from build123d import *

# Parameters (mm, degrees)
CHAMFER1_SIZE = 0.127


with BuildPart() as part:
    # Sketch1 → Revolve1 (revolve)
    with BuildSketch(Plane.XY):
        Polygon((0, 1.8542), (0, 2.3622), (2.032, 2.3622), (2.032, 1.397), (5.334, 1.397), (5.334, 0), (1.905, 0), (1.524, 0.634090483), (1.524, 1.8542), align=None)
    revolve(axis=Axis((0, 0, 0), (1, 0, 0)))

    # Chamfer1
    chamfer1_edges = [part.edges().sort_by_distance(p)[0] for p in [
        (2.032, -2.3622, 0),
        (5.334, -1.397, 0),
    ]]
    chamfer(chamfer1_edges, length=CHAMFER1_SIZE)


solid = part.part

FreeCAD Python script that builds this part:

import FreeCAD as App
import Part
import Sketcher
from FreeCAD import Vector
Q = App.Units.Quantity


def edges_at(feature, points):
    """Names of the edges that pass closest to the given points."""
    edges = feature.Shape.Edges
    near = lambda p: min(range(len(edges)), key=lambda i: edges[i].distToShape(Part.Vertex(*p))[0])
    return sorted({f"Edge{near(p) + 1}" for p in points})

doc = App.newDocument("Part")
body = doc.addObject("PartDesign::Body", "Body")

# Sketch on XY plane
sketch1 = body.newObject("Sketcher::SketchObject", "Sketch")
sketch1.AttachmentSupport = (doc.getObject("XY_Plane"), [""])
sketch1.MapMode = "FlatFace"
sketch1.addGeometry(Part.LineSegment(Vector(0, 2.3622, 0), Vector(0, 1.8542, 0)), False)
sketch1.addGeometry(Part.LineSegment(Vector(0, 1.8542, 0), Vector(1.524, 1.8542, 0)), False)
sketch1.addGeometry(Part.LineSegment(Vector(1.524, 1.8542, 0), Vector(1.524, 0.63409, 0)), False)
sketch1.addGeometry(Part.LineSegment(Vector(1.524, 0.63409, 0), Vector(1.905, 0, 0)), False)
sketch1.addGeometry(Part.LineSegment(Vector(1.905, 0, 0), Vector(5.334, 0, 0)), False)
sketch1.addGeometry(Part.LineSegment(Vector(5.334, 0, 0), Vector(5.334, 1.397, 0)), False)
sketch1.addGeometry(Part.LineSegment(Vector(5.334, 1.397, 0), Vector(2.032, 1.397, 0)), False)
sketch1.addGeometry(Part.LineSegment(Vector(2.032, 1.397, 0), Vector(2.032, 2.3622, 0)), False)
sketch1.addGeometry(Part.LineSegment(Vector(2.032, 2.3622, 0), Vector(0, 2.3622, 0)), False)
sketch1.addConstraint(Sketcher.Constraint("Coincident", 0, 2, 1, 1))
sketch1.addConstraint(Sketcher.Constraint("Coincident", 1, 2, 2, 1))
sketch1.addConstraint(Sketcher.Constraint("Coincident", 2, 2, 3, 1))
sketch1.addConstraint(Sketcher.Constraint("Coincident", 3, 2, 4, 1))
sketch1.addConstraint(Sketcher.Constraint("Coincident", 4, 2, 5, 1))
sketch1.addConstraint(Sketcher.Constraint("Coincident", 5, 2, 6, 1))
sketch1.addConstraint(Sketcher.Constraint("Coincident", 6, 2, 7, 1))
sketch1.addConstraint(Sketcher.Constraint("Coincident", 7, 2, 8, 1))
sketch1.addConstraint(Sketcher.Constraint("Coincident", 8, 2, 0, 1))
sketch1.addConstraint(Sketcher.Constraint("Vertical", 0))
sketch1.addConstraint(Sketcher.Constraint("Horizontal", 1))
sketch1.addConstraint(Sketcher.Constraint("Vertical", 2))
sketch1.addConstraint(Sketcher.Constraint("Horizontal", 4))
sketch1.addConstraint(Sketcher.Constraint("Vertical", 5))
sketch1.addConstraint(Sketcher.Constraint("Horizontal", 6))
sketch1.addConstraint(Sketcher.Constraint("Vertical", 7))
sketch1.addConstraint(Sketcher.Constraint("Horizontal", 8))
sketch1.addConstraint(Sketcher.Constraint("PointOnObject", 0, 2, -2))
sketch1.addConstraint(Sketcher.Constraint("PointOnObject", 3, 2, -1))
sketch1.addConstraint(Sketcher.Constraint("Angle", 3, Q("-59 deg")))
sketch1.addConstraint(Sketcher.Constraint("DistanceX", 1, 1, 1, 2, Q("0.06 in")))
sketch1.addConstraint(Sketcher.Constraint("DistanceX", 6, 2, 6, 1, Q("0.13 in")))
sketch1.addConstraint(Sketcher.Constraint("DistanceX", 8, 2, 8, 1, Q("0.08 in")))
sketch1.addConstraint(Sketcher.Constraint("DistanceY", 0, 2, 0, 1, Q("0.02 in")))
sketch1.addConstraint(Sketcher.Constraint("DistanceX", 4, 1, 4, 2, Q("0.135 in")))
sketch1.addConstraint(Sketcher.Constraint("DistanceY", 5, 1, 5, 2, Q("0.055 in")))
sketch1.addConstraint(Sketcher.Constraint("DistanceY", 7, 1, 7, 2, Q("0.038 in")))
revolution = body.newObject("PartDesign::Revolution", "Revolution")
revolution.Profile = sketch1
revolution.ReferenceAxis = (sketch1, ["H_Axis"])
revolution.Angle = 360
doc.recompute()

chamfer = body.newObject("PartDesign::Chamfer", "Chamfer")
chamfer.Base = (revolution, edges_at(revolution, [(2.032, -2.362, 0), (5.334, -1.397, 0)]))
chamfer.Size = Q("0.005 in")

doc.recompute()
